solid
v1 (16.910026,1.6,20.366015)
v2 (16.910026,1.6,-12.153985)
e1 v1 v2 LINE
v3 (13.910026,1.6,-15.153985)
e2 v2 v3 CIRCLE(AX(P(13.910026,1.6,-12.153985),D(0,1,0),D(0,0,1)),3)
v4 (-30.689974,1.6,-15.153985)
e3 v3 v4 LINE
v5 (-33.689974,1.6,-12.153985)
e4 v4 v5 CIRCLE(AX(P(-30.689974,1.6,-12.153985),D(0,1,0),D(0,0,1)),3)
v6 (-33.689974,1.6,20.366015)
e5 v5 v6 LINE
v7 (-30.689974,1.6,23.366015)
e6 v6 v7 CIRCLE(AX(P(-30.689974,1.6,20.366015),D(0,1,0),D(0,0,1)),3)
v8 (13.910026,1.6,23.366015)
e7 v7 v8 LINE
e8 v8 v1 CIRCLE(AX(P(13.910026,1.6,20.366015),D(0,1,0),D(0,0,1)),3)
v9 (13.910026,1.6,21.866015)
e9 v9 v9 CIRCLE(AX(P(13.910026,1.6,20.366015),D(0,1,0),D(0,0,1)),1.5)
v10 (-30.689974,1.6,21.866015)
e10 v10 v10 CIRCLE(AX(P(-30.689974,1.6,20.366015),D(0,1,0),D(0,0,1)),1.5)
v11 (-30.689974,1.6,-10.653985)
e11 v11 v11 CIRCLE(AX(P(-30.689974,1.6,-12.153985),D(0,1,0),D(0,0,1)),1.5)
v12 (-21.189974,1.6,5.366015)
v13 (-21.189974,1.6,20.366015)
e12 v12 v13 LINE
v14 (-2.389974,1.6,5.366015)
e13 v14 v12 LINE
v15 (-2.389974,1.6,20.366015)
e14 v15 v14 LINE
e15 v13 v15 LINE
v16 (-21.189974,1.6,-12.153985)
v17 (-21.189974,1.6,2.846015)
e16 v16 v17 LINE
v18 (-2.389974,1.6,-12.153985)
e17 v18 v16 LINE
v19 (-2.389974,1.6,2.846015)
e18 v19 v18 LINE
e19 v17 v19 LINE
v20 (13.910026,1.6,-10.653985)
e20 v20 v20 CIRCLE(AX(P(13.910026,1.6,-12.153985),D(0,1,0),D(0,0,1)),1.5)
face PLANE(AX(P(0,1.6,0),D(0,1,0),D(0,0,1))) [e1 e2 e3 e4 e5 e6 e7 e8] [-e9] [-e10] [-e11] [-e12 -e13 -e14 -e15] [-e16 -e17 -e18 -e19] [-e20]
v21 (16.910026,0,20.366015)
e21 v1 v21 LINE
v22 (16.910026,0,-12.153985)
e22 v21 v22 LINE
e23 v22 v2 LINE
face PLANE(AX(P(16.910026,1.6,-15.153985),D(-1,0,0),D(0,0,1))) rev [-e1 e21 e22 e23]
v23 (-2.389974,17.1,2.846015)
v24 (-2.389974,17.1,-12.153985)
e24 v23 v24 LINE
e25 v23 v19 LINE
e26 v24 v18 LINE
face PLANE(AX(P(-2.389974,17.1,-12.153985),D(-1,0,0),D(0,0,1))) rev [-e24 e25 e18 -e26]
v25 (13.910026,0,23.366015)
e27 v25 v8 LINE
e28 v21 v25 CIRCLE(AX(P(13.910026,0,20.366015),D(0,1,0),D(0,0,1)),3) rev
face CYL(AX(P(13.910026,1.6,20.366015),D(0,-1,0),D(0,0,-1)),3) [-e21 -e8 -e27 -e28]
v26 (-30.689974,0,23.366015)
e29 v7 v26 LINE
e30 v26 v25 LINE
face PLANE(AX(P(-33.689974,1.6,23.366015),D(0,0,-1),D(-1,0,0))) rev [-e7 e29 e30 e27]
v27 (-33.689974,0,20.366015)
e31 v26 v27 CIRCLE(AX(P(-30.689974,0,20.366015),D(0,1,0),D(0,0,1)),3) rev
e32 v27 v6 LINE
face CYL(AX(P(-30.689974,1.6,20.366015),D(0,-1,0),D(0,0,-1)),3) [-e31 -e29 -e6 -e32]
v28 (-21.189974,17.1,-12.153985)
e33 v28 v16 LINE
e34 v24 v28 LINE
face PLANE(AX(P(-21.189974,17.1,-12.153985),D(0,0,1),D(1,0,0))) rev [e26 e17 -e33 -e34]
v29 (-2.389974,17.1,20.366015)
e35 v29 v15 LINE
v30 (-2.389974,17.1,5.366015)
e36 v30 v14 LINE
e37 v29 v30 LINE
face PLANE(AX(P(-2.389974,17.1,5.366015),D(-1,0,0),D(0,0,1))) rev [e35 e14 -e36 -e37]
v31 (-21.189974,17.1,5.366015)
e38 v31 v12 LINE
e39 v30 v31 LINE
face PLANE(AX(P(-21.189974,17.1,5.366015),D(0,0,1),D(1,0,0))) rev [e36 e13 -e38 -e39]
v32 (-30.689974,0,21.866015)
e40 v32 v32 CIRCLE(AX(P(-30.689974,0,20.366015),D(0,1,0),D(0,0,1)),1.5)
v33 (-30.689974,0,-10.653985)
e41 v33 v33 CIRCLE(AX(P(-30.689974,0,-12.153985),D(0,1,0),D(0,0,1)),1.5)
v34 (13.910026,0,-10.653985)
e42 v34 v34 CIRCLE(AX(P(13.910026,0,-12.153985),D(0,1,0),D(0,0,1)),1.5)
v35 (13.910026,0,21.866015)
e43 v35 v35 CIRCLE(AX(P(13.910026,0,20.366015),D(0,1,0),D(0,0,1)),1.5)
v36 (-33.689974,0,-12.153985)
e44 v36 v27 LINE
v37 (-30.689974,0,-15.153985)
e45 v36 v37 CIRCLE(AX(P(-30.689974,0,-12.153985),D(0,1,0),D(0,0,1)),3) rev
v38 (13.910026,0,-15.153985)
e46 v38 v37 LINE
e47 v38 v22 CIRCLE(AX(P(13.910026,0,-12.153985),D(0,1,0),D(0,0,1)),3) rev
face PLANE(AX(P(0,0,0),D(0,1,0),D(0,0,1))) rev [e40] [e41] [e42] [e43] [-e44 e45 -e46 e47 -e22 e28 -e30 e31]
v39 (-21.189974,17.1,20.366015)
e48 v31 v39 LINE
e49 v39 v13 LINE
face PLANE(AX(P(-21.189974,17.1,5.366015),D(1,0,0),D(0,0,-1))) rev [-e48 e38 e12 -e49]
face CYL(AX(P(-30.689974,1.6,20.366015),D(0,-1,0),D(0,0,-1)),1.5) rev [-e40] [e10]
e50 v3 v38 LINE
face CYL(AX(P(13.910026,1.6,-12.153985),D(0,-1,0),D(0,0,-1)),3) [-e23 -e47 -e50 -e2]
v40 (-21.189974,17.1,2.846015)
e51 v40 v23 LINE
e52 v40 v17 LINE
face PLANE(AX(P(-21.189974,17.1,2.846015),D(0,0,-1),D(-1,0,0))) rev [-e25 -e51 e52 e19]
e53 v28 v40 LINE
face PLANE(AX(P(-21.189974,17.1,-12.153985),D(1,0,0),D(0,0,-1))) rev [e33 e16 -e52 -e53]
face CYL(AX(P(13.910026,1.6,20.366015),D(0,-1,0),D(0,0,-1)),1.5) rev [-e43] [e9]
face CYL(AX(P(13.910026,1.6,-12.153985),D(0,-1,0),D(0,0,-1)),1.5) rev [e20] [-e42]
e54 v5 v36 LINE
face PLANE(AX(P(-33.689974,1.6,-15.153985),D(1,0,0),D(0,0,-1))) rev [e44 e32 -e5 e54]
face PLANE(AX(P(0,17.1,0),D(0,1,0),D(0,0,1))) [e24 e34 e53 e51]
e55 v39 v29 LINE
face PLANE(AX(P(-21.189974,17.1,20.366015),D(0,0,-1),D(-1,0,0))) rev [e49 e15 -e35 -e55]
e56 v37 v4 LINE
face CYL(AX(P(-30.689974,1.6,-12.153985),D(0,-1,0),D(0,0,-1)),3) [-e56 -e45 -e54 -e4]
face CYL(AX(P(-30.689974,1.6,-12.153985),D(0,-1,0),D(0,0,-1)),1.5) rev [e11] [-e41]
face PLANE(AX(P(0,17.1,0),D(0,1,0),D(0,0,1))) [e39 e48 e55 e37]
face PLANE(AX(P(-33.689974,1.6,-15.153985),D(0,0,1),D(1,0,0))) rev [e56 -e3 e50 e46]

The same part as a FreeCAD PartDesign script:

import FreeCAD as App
import Part
import Sketcher
from FreeCAD import Vector
Q = App.Units.Quantity


def edges_at(feature, points):
    """Names of the edges that pass closest to the given points."""
    edges = feature.Shape.Edges
    near = lambda p: min(range(len(edges)), key=lambda i: edges[i].distToShape(Part.Vertex(*p))[0])
    return sorted({f"Edge{near(p) + 1}" for p in points})

doc = App.newDocument("Part")
body = doc.addObject("PartDesign::Body", "Body")

# Sketch on XZ plane
sketch1 = body.newObject("Sketcher::SketchObject", "Sketch")
sketch1.AttachmentSupport = (doc.getObject("XZ_Plane"), [""])
sketch1.MapMode = "FlatFace"
sketch1.addGeometry([
    Part.LineSegment(Vector(-33.7, -15.2, 0), Vector(-33.7, 23.4, 0)),  # 0
    Part.LineSegment(Vector(-33.7, 23.4, 0), Vector(16.9, 23.4, 0)),  # 1
    Part.LineSegment(Vector(16.9, 23.4, 0), Vector(16.9, -15.2, 0)),  # 2
    Part.LineSegment(Vector(16.9, -15.2, 0), Vector(-33.7, -15.2, 0)),  # 3
    Part.Circle(Vector(-30.7, 20.4, 0), Vector(0, 0, 1), 1.5),  # 4
    Part.Circle(Vector(13.9, 20.4, 0), Vector(0, 0, 1), 1.5),  # 5
    Part.Circle(Vector(-30.7, -12.2, 0), Vector(0, 0, 1), 1.5),  # 6
    Part.Circle(Vector(13.9, -12.2, 0), Vector(0, 0, 1), 1.5),  # 7
], False)
sketch1.addConstraint([
    Sketcher.Constraint("Coincident", 0, 2, 1, 1),
    Sketcher.Constraint("Coincident", 1, 2, 2, 1),
    Sketcher.Constraint("Coincident", 2, 2, 3, 1),
    Sketcher.Constraint("Coincident", 3, 2, 0, 1),
    Sketcher.Constraint("Vertical", 0),
    Sketcher.Constraint("Horizontal", 1),
    Sketcher.Constraint("Vertical", 2),
    Sketcher.Constraint("Horizontal", 3),
    Sketcher.Constraint("Equal", 4, 5),
    Sketcher.Constraint("Equal", 5, 6),
    Sketcher.Constraint("Equal", 6, 7),
    Sketcher.Constraint("Horizontal", 4, 3, 5, 3),
    Sketcher.Constraint("Horizontal", 6, 3, 7, 3),
    Sketcher.Constraint("Vertical", 4, 3, 6, 3),
    Sketcher.Constraint("Vertical", 5, 3, 7, 3),
    Sketcher.Constraint("Diameter", 4, Q("3 mm")),
    Sketcher.Constraint("DistanceX", 1, 1, 1, 2, Q("50.6 mm")),
    Sketcher.Constraint("DistanceX", 0, 2, 4, 3, Q("3 mm")),
    Sketcher.Constraint("DistanceY", 4, 3, 0, 2, Q("3 mm")),
    Sketcher.Constraint("DistanceX", 5, 3, 1, 2, Q("3 mm")),
    Sketcher.Constraint("DistanceY", 2, 2, 7, 3, Q("3 mm")),
    Sketcher.Constraint("DistanceY", 0, 1, 0, 2, Q("38.52 mm")),
    Sketcher.Constraint("DistanceX", 4, 3, -1, 1, Q("30.689974 mm")),
    Sketcher.Constraint("DistanceY", -1, 1, 4, 3, Q("20.366015 mm")),
])
pad1 = body.newObject("PartDesign::Pad", "Pad")
pad1.Profile = sketch1
pad1.Length = 1.6
pad1.Reversed = True
doc.recompute()

fillet = body.newObject("PartDesign::Fillet", "Fillet")
fillet.Base = (pad1, edges_at(pad1, [(16.91, 0.8, -15.154)]))
fillet.Radius = 3
doc.recompute()

fillet2 = body.newObject("PartDesign::Fillet", "Fillet001")
fillet2.Base = (fillet, edges_at(fillet, [(-33.69, 0.8, -15.154)]))
fillet2.Radius = 3
doc.recompute()

fillet3 = body.newObject("PartDesign::Fillet", "Fillet002")
fillet3.Base = (fillet2, edges_at(fillet2, [(-33.69, 0.8, 23.366)]))
fillet3.Radius = 3
doc.recompute()

fillet4 = body.newObject("PartDesign::Fillet", "Fillet003")
fillet4.Base = (fillet3, edges_at(fillet3, [(16.91, 0.8, 23.366)]))
fillet4.Radius = 3

# Sketch on XZ plane
sketch2 = body.newObject("Sketcher::SketchObject", "Sketch001")
sketch2.AttachmentSupport = (doc.getObject("XZ_Plane"), [""])
sketch2.MapMode = "FlatFace"
sketch2.AttachmentOffset = App.Placement(Vector(0, 0, -1.6), App.Rotation())
sketch2.addGeometry([
    Part.LineSegment(Vector(-21, -12, 0), Vector(-21, 3, 0)),  # 0
    Part.LineSegment(Vector(-21, 3, 0), Vector(-2, 3, 0)),  # 1
    Part.LineSegment(Vector(-2, 3, 0), Vector(-2, -12, 0)),  # 2
    Part.LineSegment(Vector(-2, -12, 0), Vector(-21, -12, 0)),  # 3
    Part.LineSegment(Vector(-21, 5, 0), Vector(-21, 20, 0)),  # 4
    Part.LineSegment(Vector(-21, 20, 0), Vector(-2, 20, 0)),  # 5
    Part.LineSegment(Vector(-2, 20, 0), Vector(-2, 5, 0)),  # 6
    Part.LineSegment(Vector(-2, 5, 0), Vector(-21, 5, 0)),  # 7
], False)
sketch2.addConstraint([
    Sketcher.Constraint("Coincident", 0, 2, 1, 1),
    Sketcher.Constraint("Coincident", 1, 2, 2, 1),
    Sketcher.Constraint("Coincident", 2, 2, 3, 1),
    Sketcher.Constraint("Coincident", 3, 2, 0, 1),
    Sketcher.Constraint("Coincident", 4, 2, 5, 1),
    Sketcher.Constraint("Coincident", 5, 2, 6, 1),
    Sketcher.Constraint("Coincident", 6, 2, 7, 1),
    Sketcher.Constraint("Coincident", 7, 2, 4, 1),
    Sketcher.Constraint("Vertical", 0),
    Sketcher.Constraint("Horizontal", 1),
    Sketcher.Constraint("Vertical", 2),
    Sketcher.Constraint("Horizontal", 3),
    Sketcher.Constraint("Vertical", 4),
    Sketcher.Constraint("Horizontal", 5),
    Sketcher.Constraint("Vertical", 6),
    Sketcher.Constraint("Horizontal", 7),
    Sketcher.Constraint("Vertical", 3, 2, 4, 2),
    Sketcher.Constraint("Vertical", 2, 2, 5, 2),
    Sketcher.Constraint("Equal", 2, 4),
    Sketcher.Constraint("DistanceY", 0, 1, 0, 2, Q("15 mm")),
    Sketcher.Constraint("DistanceX", 1, 1, 1, 2, Q("18.8 mm")),
    Sketcher.Constraint("DistanceY", 0, 2, 4, 2, Q("17.52 mm")),
    Sketcher.Constraint("DistanceX", 0, 2, -1, 1, Q("21.189974 mm")),
    Sketcher.Constraint("DistanceY", -1, 1, 0, 2, Q("2.846015 mm")),
])
pad2 = body.newObject("PartDesign::Pad", "Pad001")
pad2.Profile = sketch2
pad2.Length = 15.5
pad2.Reversed = True

doc.recompute()
